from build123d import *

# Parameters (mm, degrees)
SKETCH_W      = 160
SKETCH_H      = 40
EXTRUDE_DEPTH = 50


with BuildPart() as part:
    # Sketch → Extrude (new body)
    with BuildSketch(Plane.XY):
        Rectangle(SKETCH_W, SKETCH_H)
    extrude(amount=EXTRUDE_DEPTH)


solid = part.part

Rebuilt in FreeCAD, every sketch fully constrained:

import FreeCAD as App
import Part
import Sketcher

V = App.Vector

doc = App.newDocument("Part")
params = doc.addObject("Spreadsheet::Sheet", "Params")
for row, (alias, value) in enumerate([
    ("sketch1_width", "160 mm"),
    ("sketch1_height", "40 mm"),
    ("pad1_length", "50 mm"),
], start=1):
    params.set(f"A{row}", alias)
    params.set(f"B{row}", "=" + value)
    params.setAlias(f"B{row}", alias)

body = doc.addObject("PartDesign::Body", "Body")

sketch1 = doc.addObject("Sketcher::SketchObject", "Sketch")
body.addObject(sketch1)
sketch1.AttachmentSupport = (doc.XY_Plane, [""])
sketch1.MapMode = "FlatFace"
sketch1.addGeometry(Part.LineSegment(V(-80, 20, 0), V(-80, -20, 0)), False)
sketch1.addGeometry(Part.LineSegment(V(-80, -20, 0), V(80, -20, 0)), False)
sketch1.addGeometry(Part.LineSegment(V(80, -20, 0), V(80, 20, 0)), False)
sketch1.addGeometry(Part.LineSegment(V(80, 20, 0), V(-80, 20, 0)), False)
sketch1.addConstraint(Sketcher.Constraint("Coincident", 0, 2, 1, 1))
sketch1.addConstraint(Sketcher.Constraint("Coincident", 1, 2, 2, 1))
sketch1.addConstraint(Sketcher.Constraint("Coincident", 2, 2, 3, 1))
sketch1.addConstraint(Sketcher.Constraint("Coincident", 3, 2, 0, 1))
sketch1.addConstraint(Sketcher.Constraint("Vertical", 0))
sketch1.addConstraint(Sketcher.Constraint("Horizontal", 1))
sketch1.addConstraint(Sketcher.Constraint("Vertical", 2))
sketch1.addConstraint(Sketcher.Constraint("Horizontal", 3))
sketch1.addConstraint(Sketcher.Constraint("Symmetric", 0, 2, 2, 2, -1, 1))
sketch1.addConstraint(Sketcher.Constraint("DistanceX", 1, 1, 1, 2, 160.0))
sketch1.addConstraint(Sketcher.Constraint("DistanceY", 0, 2, 0, 1, 40.0))
sketch1.setExpression("Constraints[9]", "Params.sketch1_width")
sketch1.setExpression("Constraints[10]", "Params.sketch1_height")
pad1 = doc.addObject("PartDesign::Pad", "Pad")
body.addObject(pad1)
pad1.Profile = sketch1
pad1.setExpression("Length", "Params.pad1_length")

doc.recompute()
